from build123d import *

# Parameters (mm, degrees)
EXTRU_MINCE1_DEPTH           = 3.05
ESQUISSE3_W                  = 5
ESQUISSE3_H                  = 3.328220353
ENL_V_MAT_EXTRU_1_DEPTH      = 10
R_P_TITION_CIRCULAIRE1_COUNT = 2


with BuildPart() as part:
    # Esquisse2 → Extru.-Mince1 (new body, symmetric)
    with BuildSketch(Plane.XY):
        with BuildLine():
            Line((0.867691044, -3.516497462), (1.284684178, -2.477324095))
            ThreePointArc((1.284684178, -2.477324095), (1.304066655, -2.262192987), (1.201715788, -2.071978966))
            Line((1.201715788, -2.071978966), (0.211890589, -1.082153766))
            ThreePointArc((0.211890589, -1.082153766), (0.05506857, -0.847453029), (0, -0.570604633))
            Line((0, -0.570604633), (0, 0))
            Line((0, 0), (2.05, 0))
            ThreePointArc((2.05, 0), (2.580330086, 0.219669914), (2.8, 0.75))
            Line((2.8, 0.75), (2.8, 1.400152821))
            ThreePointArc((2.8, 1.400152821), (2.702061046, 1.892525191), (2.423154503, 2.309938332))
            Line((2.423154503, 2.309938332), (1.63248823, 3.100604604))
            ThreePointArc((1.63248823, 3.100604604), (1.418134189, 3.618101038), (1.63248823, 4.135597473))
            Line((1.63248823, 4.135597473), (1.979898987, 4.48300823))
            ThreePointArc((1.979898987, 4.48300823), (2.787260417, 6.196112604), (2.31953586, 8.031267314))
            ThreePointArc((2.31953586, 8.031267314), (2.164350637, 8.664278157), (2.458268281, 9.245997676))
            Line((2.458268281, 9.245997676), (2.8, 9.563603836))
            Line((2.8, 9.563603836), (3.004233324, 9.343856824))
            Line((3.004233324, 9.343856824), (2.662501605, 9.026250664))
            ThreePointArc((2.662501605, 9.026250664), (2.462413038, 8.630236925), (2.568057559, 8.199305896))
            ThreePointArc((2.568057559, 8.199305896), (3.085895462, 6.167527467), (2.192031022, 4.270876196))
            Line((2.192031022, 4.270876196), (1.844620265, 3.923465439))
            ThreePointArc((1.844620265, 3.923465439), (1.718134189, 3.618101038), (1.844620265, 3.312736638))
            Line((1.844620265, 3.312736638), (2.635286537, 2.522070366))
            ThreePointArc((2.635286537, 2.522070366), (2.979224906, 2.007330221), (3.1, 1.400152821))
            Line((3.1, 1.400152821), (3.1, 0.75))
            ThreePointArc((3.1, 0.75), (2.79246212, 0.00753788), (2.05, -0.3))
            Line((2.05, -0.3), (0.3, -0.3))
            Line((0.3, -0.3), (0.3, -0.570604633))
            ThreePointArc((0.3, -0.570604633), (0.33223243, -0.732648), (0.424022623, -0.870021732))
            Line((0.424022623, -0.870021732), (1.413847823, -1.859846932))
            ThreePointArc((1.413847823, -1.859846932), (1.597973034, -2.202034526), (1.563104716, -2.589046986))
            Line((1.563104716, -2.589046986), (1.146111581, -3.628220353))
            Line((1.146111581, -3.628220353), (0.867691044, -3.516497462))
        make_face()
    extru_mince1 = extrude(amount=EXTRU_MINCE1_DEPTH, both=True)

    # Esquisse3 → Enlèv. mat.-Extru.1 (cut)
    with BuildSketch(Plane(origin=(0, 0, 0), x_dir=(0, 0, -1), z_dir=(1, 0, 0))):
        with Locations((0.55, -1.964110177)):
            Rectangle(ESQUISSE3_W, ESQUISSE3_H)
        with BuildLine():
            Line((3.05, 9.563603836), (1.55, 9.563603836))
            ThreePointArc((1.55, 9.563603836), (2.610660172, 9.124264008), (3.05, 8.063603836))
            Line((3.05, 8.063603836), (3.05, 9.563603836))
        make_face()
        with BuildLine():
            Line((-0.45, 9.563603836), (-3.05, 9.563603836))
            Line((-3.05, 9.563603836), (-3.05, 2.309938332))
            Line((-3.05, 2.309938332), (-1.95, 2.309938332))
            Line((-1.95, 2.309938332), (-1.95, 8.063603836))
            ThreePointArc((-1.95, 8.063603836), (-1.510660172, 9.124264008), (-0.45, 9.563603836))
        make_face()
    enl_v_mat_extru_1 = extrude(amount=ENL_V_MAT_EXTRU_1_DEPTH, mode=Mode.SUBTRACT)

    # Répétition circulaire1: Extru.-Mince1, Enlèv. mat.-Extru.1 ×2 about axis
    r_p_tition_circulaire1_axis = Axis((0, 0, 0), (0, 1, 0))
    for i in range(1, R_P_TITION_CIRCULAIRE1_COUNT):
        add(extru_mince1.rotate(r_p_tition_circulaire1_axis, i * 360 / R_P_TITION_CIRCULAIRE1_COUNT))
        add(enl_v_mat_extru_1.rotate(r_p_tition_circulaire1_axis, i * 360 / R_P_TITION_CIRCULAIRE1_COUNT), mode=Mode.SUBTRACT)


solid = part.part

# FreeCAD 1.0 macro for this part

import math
import FreeCAD as App
import Part
import Sketcher

V = App.Vector
Q = App.Units.Quantity


def add_polygon(sketch, points):
    """Adds a closed chain of lines whose ends are joined by coincident constraints."""
    first, n = sketch.GeometryCount, len(points)
    for a, b in zip(points, points[1:] + points[:1]):
        sketch.addGeometry(Part.LineSegment(App.Vector(*a, 0), App.Vector(*b, 0)), False)
    for i in range(n):
        sketch.addConstraint(Sketcher.Constraint("Coincident", first + i, 2, first + (i + 1) % n, 1))

doc = App.newDocument("Part")
body = doc.addObject("PartDesign::Body", "Body")

# Sketch on XY plane
sketch1 = body.newObject("Sketcher::SketchObject", "Sketch")
sketch1.AttachmentSupport = (doc.getObject("XY_Plane"), [""])
sketch1.MapMode = "FlatFace"
sketch1.addGeometry([
    Part.LineSegment(V(1.284684, -2.477324, 0), V(0.867691, -3.516497, 0)),  # 0
    Part.LineSegment(V(0.867691, -3.516497, 0), V(1.146112, -3.62822, 0)),  # 1
    Part.LineSegment(V(1.146112, -3.62822, 0), V(1.563105, -2.589047, 0)),  # 2
    Part.ArcOfCircle(Part.Circle(V(0.936206, -2.337489, 0), V(0, 0, 1), 0.675488), math.radians(-21.864303), math.radians(45)),  # 3
    Part.LineSegment(V(1.413848, -1.859847, 0), V(0.424023, -0.870022, 0)),  # 4
    Part.ArcOfCircle(Part.Circle(V(0.72344, -0.570605, 0), V(0, 0, 1), 0.42344), math.radians(-180), math.radians(-135)),  # 5
    Part.LineSegment(V(0.3, -0.570605, 0), V(0.3, -0.3, 0)),  # 6
    Part.LineSegment(V(0.3, -0.3, 0), V(2.05, -0.3, 0)),  # 7
    Part.ArcOfCircle(Part.Circle(V(2.05, 0.75, 0), V(0, 0, 1), 1.05), math.radians(-90), math.radians(0)),  # 8
    Part.LineSegment(V(3.1, 0.75, 0), V(3.1, 1.400153, 0)),  # 9
    Part.ArcOfCircle(Part.Circle(V(1.513369, 1.400153, 0), V(0, 0, 1), 1.586631), math.radians(0), math.radians(45)),  # 10
    Part.LineSegment(V(2.635287, 2.52207, 0), V(1.84462, 3.312737, 0)),  # 11
    Part.ArcOfCircle(Part.Circle(V(2.149985, 3.618101, 0), V(0, 0, 1), 0.43185), math.radians(135), math.radians(225)),  # 12
    Part.LineSegment(V(1.84462, 3.923465, 0), V(2.192031, 4.270876, 0)),  # 13
    Part.ArcOfCircle(Part.Circle(V(0, 6.462907, 0), V(0, 0, 1), 3.1), math.radians(-45), math.radians(34.064692)),  # 14
    Part.ArcOfCircle(Part.Circle(V(3.098025, 8.557645, 0), V(0, 0, 1), 0.639744), math.radians(132.904449), math.radians(214.064692)),  # 15
    Part.LineSegment(V(2.662502, 9.026251, 0), V(3.004233, 9.343857, 0)),  # 16
    Part.LineSegment(V(3.004233, 9.343857, 0), V(2.8, 9.563604, 0)),  # 17
    Part.LineSegment(V(2.8, 9.563604, 0), V(2.458268, 9.245998, 0)),  # 18
    Part.ArcOfCircle(Part.Circle(V(3.098025, 8.557645, 0), V(0, 0, 1), 0.939744), math.radians(132.904449), math.radians(214.064692)),  # 19
    Part.ArcOfCircle(Part.Circle(V(0, 6.462907, 0), V(0, 0, 1), 2.8), math.radians(-45), math.radians(34.064692)),  # 20
    Part.LineSegment(V(1.979899, 4.483008, 0), V(1.632488, 4.135597, 0)),  # 21
    Part.ArcOfCircle(Part.Circle(V(2.149985, 3.618101, 0), V(0, 0, 1), 0.73185), math.radians(135), math.radians(225)),  # 22
    Part.LineSegment(V(1.632488, 3.100605, 0), V(2.423155, 2.309938, 0)),  # 23
    Part.ArcOfCircle(Part.Circle(V(1.513369, 1.400153, 0), V(0, 0, 1), 1.286631), math.radians(0), math.radians(45)),  # 24
    Part.LineSegment(V(2.8, 1.400153, 0), V(2.8, 0.75, 0)),  # 25
    Part.ArcOfCircle(Part.Circle(V(2.05, 0.75, 0), V(0, 0, 1), 0.75), math.radians(-90), math.radians(0)),  # 26
    Part.LineSegment(V(2.05, 0, 0), V(0, 0, 0)),  # 27
    Part.LineSegment(V(0, 0, 0), V(0, -0.570605, 0)),  # 28
    Part.ArcOfCircle(Part.Circle(V(0.72344, -0.570605, 0), V(0, 0, 1), 0.72344), math.radians(180), math.radians(225)),  # 29
    Part.LineSegment(V(0.211891, -1.082154, 0), V(1.201716, -2.071979, 0)),  # 30
    Part.ArcOfCircle(Part.Circle(V(0.936206, -2.337489, 0), V(0, 0, 1), 0.375488), math.radians(-21.864303), math.radians(45)),  # 31
], False)
sketch1.addConstraint([
    Sketcher.Constraint("Coincident", 0, 2, 1, 1),
    Sketcher.Constraint("Coincident", 1, 2, 2, 1),
    Sketcher.Constraint("Tangent", 2, 2, 3, 1),
    Sketcher.Constraint("Tangent", 3, 2, 4, 1),
    Sketcher.Constraint("Tangent", 4, 2, 5, 2),
    Sketcher.Constraint("Tangent", 5, 1, 6, 1),
    Sketcher.Constraint("Coincident", 6, 2, 7, 1),
    Sketcher.Constraint("Tangent", 7, 2, 8, 1),
    Sketcher.Constraint("Tangent", 8, 2, 9, 1),
    Sketcher.Constraint("Tangent", 9, 2, 10, 1),
    Sketcher.Constraint("Tangent", 10, 2, 11, 1),
    Sketcher.Constraint("Tangent", 11, 2, 12, 2),
    Sketcher.Constraint("Tangent", 12, 1, 13, 1),
    Sketcher.Constraint("Tangent", 13, 2, 14, 1),
    Sketcher.Constraint("Tangent", 14, 2, 15, 2),
    Sketcher.Constraint("Tangent", 15, 1, 16, 1),
    Sketcher.Constraint("Coincident", 16, 2, 17, 1),
    Sketcher.Constraint("Coincident", 17, 2, 18, 1),
    Sketcher.Constraint("Tangent", 18, 2, 19, 1),
    Sketcher.Constraint("Tangent", 19, 2, 20, 2),
    Sketcher.Constraint("Tangent", 20, 1, 21, 1),
    Sketcher.Constraint("Tangent", 21, 2, 22, 1),
    Sketcher.Constraint("Tangent", 22, 2, 23, 1),
    Sketcher.Constraint("Tangent", 23, 2, 24, 2),
    Sketcher.Constraint("Tangent", 24, 1, 25, 1),
    Sketcher.Constraint("Tangent", 25, 2, 26, 2),
    Sketcher.Constraint("Tangent", 26, 1, 27, 1),
    Sketcher.Constraint("Coincident", 27, 2, 28, 1),
    Sketcher.Constraint("Tangent", 28, 2, 29, 1),
    Sketcher.Constraint("Tangent", 29, 2, 30, 1),
    Sketcher.Constraint("Tangent", 30, 2, 31, 2),
    Sketcher.Constraint("Tangent", 31, 1, 0, 1),
    Sketcher.Constraint("Vertical", 6),
    Sketcher.Constraint("Horizontal", 7),
    Sketcher.Constraint("Vertical", 9),
    Sketcher.Constraint("Vertical", 25),
    Sketcher.Constraint("Horizontal", 27),
    Sketcher.Constraint("Vertical", 28),
    Sketcher.Constraint("Coincident", 27, 2, -1, 1),
    Sketcher.Constraint("Coincident", 19, 3, 15, 3),
    Sketcher.Constraint("Coincident", 20, 3, 14, 3),
    Sketcher.Constraint("Coincident", 22, 3, 12, 3),
    Sketcher.Constraint("Coincident", 24, 3, 10, 3),
    Sketcher.Constraint("Coincident", 26, 3, 8, 3),
    Sketcher.Constraint("Coincident", 29, 3, 5, 3),
    Sketcher.Constraint("Coincident", 31, 3, 3, 3),
    Sketcher.Constraint("PointOnObject", 14, 3, -2),
    Sketcher.Constraint("Perpendicular", 0, 1),
    Sketcher.Constraint("Perpendicular", 1, 2),
    Sketcher.Constraint("Parallel", 4, 11),
    Sketcher.Constraint("Perpendicular", 11, 13),
    Sketcher.Constraint("Perpendicular", 16, 17),
    Sketcher.Constraint("Perpendicular", 17, 18),
    Sketcher.Constraint("Parallel", 13, 21),
    Sketcher.Constraint("Perpendicular", 21, 23),
    Sketcher.Constraint("Parallel", 23, 30),
    Sketcher.Constraint("Vertical", 11, 2, 12, 1),
    Sketcher.Constraint("Vertical", 17, 2, 24, 1),
    Sketcher.Constraint("Equal", 1, 17),
    Sketcher.Constraint("Radius", 14, Q("3.1 mm")),
    Sketcher.Constraint("Radius", 20, Q("2.8 mm")),
    Sketcher.Constraint("Radius", 8, Q("1.05 mm")),
    Sketcher.Constraint("DistanceX", 7, 1, 7, 2, Q("1.75 mm")),
    Sketcher.Constraint("Radius", 5, Q("0.42344 mm")),
    Sketcher.Constraint("Radius", 10, Q("1.586631 mm")),
    Sketcher.Constraint("Radius", 12, Q("0.43185 mm")),
    Sketcher.Constraint("Radius", 3, Q("0.675488 mm")),
    Sketcher.Constraint("Radius", 15, Q("0.639744 mm")),
    Sketcher.Constraint("DistanceY", -1, 1, 12, 3, Q("3.618101 mm")),
    Sketcher.Constraint("DistanceX", -1, 1, 15, 1, Q("2.662502 mm")),
    Sketcher.Constraint("DistanceX", 31, 3, 2, 2, Q("0.626899 mm")),
    Sketcher.Constraint("DistanceX", 22, 3, 10, 2, Q("0.485302 mm")),
    Sketcher.Constraint("DistanceY", 14, 3, 14, 2, Q("1.736399 mm")),
    Sketcher.Constraint("DistanceY", 6, 1, 6, 2, Q("0.270605 mm")),
    Sketcher.Constraint("DistanceY", 3, 3, -1, 1, Q("2.337489 mm")),
    Sketcher.Constraint("DistanceX", -1, 1, 0, 2, Q("0.867691 mm")),
])
pad1 = body.newObject("PartDesign::Pad", "Pad")
pad1.Profile = sketch1
pad1.Length = 6.1
pad1.Midplane = True

# Sketch on YZ plane
sketch2 = body.newObject("Sketcher::SketchObject", "Sketch001")
sketch2.AttachmentSupport = (doc.getObject("YZ_Plane"), [""])
sketch2.MapMode = "FlatFace"
add_polygon(sketch2, [(-0.3, 1.95), (-3.62822, 1.95), (-3.62822, -3.05), (-0.3, -3.05)])  # lines 0-3
sketch2.addGeometry(Part.LineSegment(V(9.563604, -3.05, 0), V(9.563604, -1.55, 0)), False)  # 4
sketch2.addGeometry(Part.ArcOfCircle(Part.Circle(V(8.063604, -1.55, 0), V(0, 0, 1), 1.5), math.radians(-90), math.radians(0)), False)  # 5
sketch2.addGeometry(Part.LineSegment(V(8.063604, -3.05, 0), V(9.563604, -3.05, 0)), False)  # 6
sketch2.addGeometry(Part.LineSegment(V(9.563604, 0.45, 0), V(9.563604, 3.05, 0)), False)  # 7
sketch2.addGeometry(Part.LineSegment(V(9.563604, 3.05, 0), V(2.309938, 3.05, 0)), False)  # 8
sketch2.addGeometry(Part.LineSegment(V(2.309938, 3.05, 0), V(2.309938, 1.95, 0)), False)  # 9
sketch2.addGeometry(Part.LineSegment(V(2.309938, 1.95, 0), V(8.063604, 1.95, 0)), False)  # 10
sketch2.addGeometry(Part.ArcOfCircle(Part.Circle(V(8.063604, 0.45, 0), V(0, 0, 1), 1.5), math.radians(0), math.radians(90)), False)  # 11
sketch2.addConstraint([
    Sketcher.Constraint("Tangent", 4, 2, 5, 2),
    Sketcher.Constraint("Tangent", 5, 1, 6, 1),
    Sketcher.Constraint("Coincident", 6, 2, 4, 1),
    Sketcher.Constraint("Coincident", 7, 2, 8, 1),
    Sketcher.Constraint("Coincident", 8, 2, 9, 1),
    Sketcher.Constraint("Coincident", 9, 2, 10, 1),
    Sketcher.Constraint("Tangent", 10, 2, 11, 2),
    Sketcher.Constraint("Tangent", 11, 1, 7, 1),
    Sketcher.Constraint("Horizontal", 0),
    Sketcher.Constraint("Vertical", 1),
    Sketcher.Constraint("Horizontal", 2),
    Sketcher.Constraint("Vertical", 3),
    Sketcher.Constraint("Vertical", 4),
    Sketcher.Constraint("Horizontal", 6),
    Sketcher.Constraint("Vertical", 7),
    Sketcher.Constraint("Horizontal", 8),
    Sketcher.Constraint("Vertical", 9),
    Sketcher.Constraint("Horizontal", 10),
    Sketcher.Constraint("Equal", 5, 11),
    Sketcher.Constraint("Symmetric", 6, 2, 7, 2, -1),
    Sketcher.Constraint("Horizontal", 2, 2, 5, 1),
    Sketcher.Constraint("Horizontal", 3, 2, 9, 2),
    Sketcher.Constraint("Radius", 5, Q("1.5 mm")),
    Sketcher.Constraint("DistanceY", 1, 2, 1, 1, Q("5 mm")),
    Sketcher.Constraint("DistanceY", 7, 1, 7, 2, Q("2.6 mm")),
    Sketcher.Constraint("DistanceX", 2, 2, -1, 1, Q("0.3 mm")),
    Sketcher.Constraint("DistanceX", 0, 2, 0, 1, Q("3.32822 mm")),
    Sketcher.Constraint("DistanceX", 8, 2, 8, 1, Q("7.253666 mm")),
    Sketcher.Constraint("DistanceX", -1, 1, 8, 2, Q("2.309938 mm")),
])
pocket1 = body.newObject("PartDesign::Pocket", "Pocket")
pocket1.Profile = sketch2
pocket1.Length = 10
pocket1.Reversed = True
doc.recompute()

polarpattern = body.newObject("PartDesign::PolarPattern", "PolarPattern")
polarpattern.Originals = [pad1, pocket1]
polarpattern.Axis = (doc.getObject("Y_Axis"), [""])
polarpattern.Angle = 360
polarpattern.Occurrences = 2
body.Tip = polarpattern

doc.recompute()
